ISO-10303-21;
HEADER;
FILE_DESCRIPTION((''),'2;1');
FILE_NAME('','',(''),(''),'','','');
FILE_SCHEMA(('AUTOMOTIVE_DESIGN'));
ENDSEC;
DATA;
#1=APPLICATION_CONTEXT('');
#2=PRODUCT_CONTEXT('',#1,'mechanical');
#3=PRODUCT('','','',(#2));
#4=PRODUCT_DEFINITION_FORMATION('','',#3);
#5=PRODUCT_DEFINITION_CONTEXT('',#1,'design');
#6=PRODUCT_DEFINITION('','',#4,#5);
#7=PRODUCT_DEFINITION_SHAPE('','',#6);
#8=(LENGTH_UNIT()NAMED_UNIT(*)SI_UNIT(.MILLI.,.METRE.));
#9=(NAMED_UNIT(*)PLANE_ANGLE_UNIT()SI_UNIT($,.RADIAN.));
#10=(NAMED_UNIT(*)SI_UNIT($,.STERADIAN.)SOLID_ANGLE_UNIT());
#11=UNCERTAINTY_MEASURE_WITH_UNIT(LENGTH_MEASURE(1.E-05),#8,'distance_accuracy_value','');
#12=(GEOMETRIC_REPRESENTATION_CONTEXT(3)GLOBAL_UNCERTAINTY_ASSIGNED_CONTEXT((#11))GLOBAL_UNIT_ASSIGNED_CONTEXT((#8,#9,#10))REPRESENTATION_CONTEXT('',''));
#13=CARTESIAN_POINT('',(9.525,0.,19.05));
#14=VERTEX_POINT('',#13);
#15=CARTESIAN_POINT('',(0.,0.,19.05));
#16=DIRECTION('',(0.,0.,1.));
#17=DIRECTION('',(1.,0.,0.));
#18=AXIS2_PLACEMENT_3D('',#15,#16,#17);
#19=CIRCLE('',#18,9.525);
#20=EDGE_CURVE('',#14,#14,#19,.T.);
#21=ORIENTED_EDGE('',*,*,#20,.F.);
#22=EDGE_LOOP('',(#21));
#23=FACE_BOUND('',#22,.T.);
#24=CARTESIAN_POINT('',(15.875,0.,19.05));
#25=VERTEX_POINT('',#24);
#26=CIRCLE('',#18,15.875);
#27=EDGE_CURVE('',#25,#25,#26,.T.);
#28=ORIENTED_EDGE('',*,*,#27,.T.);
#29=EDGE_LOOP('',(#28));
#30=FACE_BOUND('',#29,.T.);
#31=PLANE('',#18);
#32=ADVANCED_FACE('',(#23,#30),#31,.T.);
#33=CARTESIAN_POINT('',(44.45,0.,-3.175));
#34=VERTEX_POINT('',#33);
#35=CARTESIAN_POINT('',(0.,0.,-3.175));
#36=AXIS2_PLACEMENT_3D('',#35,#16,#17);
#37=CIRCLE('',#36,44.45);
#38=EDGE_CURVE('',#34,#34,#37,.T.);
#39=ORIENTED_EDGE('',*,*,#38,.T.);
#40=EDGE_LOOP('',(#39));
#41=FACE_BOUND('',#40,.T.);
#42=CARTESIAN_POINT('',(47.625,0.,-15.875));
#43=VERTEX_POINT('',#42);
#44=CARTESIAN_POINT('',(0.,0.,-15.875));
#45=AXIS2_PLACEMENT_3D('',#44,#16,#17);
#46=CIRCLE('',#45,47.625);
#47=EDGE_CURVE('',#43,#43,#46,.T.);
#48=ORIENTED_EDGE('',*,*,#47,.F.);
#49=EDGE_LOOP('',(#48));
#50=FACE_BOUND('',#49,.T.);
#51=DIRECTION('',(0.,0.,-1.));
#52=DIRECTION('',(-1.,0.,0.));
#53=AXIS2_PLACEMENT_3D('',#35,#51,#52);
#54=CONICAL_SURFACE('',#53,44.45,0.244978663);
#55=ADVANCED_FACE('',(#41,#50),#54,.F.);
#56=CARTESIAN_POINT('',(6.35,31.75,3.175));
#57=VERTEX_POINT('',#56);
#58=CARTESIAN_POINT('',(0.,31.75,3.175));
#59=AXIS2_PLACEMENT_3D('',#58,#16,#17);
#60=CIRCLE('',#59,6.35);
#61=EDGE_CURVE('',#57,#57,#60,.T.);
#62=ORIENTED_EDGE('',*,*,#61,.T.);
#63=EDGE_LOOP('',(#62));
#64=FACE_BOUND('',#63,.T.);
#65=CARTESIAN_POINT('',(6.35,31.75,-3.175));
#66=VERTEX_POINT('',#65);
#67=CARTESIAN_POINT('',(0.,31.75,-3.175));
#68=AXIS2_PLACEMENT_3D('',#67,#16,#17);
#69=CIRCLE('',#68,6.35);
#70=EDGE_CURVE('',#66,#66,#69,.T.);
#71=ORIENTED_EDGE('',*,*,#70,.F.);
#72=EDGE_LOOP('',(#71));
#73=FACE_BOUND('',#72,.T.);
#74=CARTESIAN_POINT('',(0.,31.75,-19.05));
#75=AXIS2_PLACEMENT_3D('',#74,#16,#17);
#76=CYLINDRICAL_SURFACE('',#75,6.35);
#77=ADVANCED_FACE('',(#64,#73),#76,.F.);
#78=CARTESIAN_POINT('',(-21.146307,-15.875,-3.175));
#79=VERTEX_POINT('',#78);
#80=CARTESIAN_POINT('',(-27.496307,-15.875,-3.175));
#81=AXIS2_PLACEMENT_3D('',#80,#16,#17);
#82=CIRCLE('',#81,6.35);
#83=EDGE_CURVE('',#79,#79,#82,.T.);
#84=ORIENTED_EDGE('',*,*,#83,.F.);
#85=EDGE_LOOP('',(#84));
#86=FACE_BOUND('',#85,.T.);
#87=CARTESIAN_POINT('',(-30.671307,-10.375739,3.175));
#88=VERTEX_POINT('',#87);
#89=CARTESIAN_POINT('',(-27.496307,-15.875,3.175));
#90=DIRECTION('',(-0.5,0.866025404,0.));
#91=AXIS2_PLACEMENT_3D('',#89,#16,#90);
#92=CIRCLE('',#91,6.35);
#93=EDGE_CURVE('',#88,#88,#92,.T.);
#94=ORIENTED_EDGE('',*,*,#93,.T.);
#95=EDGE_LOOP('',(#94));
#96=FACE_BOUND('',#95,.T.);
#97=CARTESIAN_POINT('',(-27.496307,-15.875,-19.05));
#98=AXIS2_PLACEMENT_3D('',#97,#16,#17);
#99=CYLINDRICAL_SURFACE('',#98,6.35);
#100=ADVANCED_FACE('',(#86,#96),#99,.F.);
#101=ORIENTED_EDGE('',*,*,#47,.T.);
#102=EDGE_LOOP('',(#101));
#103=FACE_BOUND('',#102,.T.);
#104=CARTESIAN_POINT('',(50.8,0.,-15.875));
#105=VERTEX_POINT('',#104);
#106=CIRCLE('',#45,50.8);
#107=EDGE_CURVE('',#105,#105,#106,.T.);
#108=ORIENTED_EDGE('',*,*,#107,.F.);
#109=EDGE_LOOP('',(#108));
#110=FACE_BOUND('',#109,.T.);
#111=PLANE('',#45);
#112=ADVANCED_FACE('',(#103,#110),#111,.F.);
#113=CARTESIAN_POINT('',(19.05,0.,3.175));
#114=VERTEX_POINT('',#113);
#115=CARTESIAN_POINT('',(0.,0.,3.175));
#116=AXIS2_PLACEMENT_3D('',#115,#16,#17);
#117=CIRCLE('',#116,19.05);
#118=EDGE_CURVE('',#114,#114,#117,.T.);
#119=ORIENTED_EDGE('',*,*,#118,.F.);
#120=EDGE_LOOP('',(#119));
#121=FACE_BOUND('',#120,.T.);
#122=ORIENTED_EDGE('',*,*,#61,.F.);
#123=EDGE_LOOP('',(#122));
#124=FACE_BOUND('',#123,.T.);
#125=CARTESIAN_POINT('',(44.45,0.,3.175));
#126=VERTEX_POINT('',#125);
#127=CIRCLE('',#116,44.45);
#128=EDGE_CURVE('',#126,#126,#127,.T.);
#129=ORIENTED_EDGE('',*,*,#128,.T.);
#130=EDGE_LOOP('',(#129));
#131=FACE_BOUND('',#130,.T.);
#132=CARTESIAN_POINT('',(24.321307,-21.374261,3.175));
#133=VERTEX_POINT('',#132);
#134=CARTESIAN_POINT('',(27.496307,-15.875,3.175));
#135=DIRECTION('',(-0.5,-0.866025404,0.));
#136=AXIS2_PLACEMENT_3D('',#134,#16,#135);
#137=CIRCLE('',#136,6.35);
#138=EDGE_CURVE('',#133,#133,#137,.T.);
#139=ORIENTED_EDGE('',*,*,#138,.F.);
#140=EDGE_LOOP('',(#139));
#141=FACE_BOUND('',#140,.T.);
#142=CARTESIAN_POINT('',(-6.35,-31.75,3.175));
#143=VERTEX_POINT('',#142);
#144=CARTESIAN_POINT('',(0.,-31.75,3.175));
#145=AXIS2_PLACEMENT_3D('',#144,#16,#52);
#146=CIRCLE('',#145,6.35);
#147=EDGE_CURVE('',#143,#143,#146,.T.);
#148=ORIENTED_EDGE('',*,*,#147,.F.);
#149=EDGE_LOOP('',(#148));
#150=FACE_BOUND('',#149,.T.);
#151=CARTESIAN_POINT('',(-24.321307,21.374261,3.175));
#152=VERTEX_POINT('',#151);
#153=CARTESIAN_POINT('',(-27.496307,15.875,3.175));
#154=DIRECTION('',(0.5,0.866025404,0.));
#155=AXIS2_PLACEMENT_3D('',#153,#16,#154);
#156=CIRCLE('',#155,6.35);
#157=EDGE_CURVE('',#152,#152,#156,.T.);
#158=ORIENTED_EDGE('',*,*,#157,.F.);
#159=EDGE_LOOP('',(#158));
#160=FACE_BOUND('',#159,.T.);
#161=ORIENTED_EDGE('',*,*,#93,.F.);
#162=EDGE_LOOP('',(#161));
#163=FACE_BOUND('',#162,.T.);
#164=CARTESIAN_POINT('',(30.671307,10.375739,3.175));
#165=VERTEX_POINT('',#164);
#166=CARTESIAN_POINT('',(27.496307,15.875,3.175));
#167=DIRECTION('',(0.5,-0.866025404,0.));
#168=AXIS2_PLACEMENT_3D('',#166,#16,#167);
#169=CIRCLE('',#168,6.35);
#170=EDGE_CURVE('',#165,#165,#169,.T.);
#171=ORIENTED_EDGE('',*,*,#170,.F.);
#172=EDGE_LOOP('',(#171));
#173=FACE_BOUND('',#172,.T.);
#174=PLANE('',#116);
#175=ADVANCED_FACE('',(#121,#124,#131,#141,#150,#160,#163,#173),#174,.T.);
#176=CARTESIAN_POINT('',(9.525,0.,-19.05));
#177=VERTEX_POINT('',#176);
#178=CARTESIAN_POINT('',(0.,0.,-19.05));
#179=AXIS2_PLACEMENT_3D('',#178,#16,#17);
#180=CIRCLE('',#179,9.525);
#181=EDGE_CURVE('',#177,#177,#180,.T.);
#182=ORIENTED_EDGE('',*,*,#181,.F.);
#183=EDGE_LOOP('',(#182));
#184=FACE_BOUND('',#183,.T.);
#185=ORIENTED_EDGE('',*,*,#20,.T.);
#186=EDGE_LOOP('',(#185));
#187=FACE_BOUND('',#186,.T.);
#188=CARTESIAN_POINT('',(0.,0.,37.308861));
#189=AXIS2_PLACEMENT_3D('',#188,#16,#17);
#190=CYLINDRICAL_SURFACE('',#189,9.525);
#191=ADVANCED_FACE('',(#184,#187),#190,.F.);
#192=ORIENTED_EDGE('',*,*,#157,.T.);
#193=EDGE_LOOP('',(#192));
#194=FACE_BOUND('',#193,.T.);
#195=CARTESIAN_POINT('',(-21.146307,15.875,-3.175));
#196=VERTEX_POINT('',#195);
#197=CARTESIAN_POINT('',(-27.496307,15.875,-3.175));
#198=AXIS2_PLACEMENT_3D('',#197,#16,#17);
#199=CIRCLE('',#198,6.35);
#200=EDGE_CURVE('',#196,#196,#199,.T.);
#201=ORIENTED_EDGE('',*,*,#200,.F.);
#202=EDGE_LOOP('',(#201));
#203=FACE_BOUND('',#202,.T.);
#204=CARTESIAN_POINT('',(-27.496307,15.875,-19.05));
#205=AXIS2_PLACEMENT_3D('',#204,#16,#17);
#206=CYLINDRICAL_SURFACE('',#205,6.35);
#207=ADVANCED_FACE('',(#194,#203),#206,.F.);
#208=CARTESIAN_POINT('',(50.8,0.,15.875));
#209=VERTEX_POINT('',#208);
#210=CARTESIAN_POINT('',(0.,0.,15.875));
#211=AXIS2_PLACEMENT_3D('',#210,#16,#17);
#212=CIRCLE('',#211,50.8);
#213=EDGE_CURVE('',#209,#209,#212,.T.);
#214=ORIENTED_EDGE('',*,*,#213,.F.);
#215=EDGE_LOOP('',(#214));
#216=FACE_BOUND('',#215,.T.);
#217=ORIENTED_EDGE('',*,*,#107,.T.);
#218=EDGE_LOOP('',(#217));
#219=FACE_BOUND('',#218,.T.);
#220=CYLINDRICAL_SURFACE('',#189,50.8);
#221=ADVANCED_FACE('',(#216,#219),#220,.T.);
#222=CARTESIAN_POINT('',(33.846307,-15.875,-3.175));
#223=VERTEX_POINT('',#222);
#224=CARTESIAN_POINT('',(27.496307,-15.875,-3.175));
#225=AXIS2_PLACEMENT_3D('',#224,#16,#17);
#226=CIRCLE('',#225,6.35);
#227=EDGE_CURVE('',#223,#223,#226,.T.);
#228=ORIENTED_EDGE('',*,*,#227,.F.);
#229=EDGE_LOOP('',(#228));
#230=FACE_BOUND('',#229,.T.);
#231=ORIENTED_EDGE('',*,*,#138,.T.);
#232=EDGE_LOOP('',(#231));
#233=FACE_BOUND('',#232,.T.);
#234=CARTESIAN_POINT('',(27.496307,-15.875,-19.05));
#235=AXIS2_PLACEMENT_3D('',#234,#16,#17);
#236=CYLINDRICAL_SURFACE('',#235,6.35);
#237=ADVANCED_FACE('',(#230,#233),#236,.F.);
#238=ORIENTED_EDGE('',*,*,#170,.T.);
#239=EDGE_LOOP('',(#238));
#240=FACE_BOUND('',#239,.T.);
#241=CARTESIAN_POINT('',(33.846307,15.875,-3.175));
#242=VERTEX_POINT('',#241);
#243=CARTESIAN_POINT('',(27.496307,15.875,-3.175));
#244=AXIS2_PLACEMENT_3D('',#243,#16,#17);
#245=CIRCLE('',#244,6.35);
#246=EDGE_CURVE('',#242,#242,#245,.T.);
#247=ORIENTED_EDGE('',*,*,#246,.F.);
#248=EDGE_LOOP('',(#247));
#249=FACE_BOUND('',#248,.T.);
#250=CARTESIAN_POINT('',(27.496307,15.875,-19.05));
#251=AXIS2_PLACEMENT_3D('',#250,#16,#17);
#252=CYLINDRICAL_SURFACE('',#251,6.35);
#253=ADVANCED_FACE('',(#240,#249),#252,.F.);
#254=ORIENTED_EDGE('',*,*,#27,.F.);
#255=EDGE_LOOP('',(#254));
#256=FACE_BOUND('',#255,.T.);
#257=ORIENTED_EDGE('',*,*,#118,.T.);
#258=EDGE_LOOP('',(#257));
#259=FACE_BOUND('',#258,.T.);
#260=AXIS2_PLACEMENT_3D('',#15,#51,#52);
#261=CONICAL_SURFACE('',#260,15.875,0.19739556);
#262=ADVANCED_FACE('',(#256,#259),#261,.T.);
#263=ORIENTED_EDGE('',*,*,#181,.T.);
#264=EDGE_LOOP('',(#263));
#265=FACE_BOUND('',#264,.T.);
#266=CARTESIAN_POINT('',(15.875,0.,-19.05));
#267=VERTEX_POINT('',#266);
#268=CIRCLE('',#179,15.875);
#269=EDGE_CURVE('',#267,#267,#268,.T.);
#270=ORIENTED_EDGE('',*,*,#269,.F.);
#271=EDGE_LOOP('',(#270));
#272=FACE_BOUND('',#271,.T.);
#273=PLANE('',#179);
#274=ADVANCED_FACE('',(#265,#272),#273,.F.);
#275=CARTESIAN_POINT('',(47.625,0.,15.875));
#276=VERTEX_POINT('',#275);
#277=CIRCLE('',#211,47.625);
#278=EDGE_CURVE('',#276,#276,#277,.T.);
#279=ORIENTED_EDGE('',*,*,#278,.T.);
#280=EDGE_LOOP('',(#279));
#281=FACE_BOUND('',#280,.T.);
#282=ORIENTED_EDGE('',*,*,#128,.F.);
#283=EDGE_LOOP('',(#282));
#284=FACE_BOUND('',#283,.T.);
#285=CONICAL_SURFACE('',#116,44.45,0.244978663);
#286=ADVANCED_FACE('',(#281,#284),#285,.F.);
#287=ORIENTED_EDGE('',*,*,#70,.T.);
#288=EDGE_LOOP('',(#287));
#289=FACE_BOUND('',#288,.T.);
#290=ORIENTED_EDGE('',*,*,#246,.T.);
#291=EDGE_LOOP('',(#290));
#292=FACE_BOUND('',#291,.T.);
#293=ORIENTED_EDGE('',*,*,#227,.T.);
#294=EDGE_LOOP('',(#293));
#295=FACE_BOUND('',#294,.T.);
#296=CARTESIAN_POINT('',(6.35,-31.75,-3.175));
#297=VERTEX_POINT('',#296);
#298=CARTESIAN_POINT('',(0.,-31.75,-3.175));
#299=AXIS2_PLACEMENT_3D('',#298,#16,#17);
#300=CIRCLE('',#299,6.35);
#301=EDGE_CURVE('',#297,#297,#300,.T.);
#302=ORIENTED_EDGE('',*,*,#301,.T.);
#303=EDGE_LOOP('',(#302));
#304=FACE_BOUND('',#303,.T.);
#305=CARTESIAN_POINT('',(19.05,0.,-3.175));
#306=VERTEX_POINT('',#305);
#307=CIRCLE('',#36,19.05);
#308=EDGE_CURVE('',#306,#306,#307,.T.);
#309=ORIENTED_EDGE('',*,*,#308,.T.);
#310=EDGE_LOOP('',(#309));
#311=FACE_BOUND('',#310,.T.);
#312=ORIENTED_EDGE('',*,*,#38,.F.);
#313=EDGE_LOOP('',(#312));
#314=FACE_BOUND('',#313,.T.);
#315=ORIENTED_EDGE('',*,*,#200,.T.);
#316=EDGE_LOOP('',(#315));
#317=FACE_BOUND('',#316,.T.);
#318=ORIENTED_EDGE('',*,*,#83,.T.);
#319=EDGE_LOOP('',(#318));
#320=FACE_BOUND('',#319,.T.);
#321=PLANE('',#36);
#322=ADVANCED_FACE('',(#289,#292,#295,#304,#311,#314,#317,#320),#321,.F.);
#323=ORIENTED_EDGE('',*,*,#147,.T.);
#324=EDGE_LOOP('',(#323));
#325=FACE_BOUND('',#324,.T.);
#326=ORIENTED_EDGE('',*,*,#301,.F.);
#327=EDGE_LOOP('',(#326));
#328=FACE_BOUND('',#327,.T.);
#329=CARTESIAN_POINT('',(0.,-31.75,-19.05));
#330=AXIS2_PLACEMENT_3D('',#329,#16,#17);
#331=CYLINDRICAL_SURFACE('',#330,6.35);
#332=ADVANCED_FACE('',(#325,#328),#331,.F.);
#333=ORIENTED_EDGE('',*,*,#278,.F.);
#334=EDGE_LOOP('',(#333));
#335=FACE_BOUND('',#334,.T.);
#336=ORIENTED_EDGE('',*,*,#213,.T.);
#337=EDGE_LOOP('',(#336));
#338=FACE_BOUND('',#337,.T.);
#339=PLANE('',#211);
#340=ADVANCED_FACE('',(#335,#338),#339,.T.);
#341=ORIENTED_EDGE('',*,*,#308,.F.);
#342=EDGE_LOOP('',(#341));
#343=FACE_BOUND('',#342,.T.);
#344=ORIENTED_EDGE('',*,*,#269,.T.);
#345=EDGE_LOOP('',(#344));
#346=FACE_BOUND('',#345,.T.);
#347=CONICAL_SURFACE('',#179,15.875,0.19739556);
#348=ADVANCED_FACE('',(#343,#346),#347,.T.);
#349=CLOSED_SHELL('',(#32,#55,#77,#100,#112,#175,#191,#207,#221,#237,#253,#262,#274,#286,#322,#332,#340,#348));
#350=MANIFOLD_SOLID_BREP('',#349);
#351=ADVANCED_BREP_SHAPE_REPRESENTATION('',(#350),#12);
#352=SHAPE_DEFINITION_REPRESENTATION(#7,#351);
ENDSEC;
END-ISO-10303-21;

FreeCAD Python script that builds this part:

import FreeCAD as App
import Part
import Sketcher
from FreeCAD import Vector
Q = App.Units.Quantity

doc = App.newDocument("Part")
body = doc.addObject("PartDesign::Body", "Body")

sketch1 = body.newObject("Sketcher::SketchObject", "Sketch")
sketch1.AttachmentSupport = (doc.getObject("YZ_Plane"), [""])
sketch1.MapMode = "FlatFace"
sketch1.addGeometry(Part.LineSegment(Vector(9.5, 19.1, 0), Vector(9.5, -19.1, 0)), False)
sketch1.addGeometry(Part.LineSegment(Vector(9.5, -19.1, 0), Vector(15.9, -19.1, 0)), False)
sketch1.addGeometry(Part.LineSegment(Vector(15.9, -19.1, 0), Vector(19.1, -3.2, 0)), False)
sketch1.addGeometry(Part.LineSegment(Vector(19.1, -3.2, 0), Vector(44.5, -3.2, 0)), False)
sketch1.addGeometry(Part.LineSegment(Vector(44.5, -3.2, 0), Vector(47.6, -15.9, 0)), False)
sketch1.addGeometry(Part.LineSegment(Vector(47.6, -15.9, 0), Vector(50.8, -15.9, 0)), False)
sketch1.addGeometry(Part.LineSegment(Vector(50.8, -15.9, 0), Vector(50.8, 15.9, 0)), False)
sketch1.addGeometry(Part.LineSegment(Vector(50.8, 15.9, 0), Vector(47.6, 15.9, 0)), False)
sketch1.addGeometry(Part.LineSegment(Vector(47.6, 15.9, 0), Vector(44.5, 3.2, 0)), False)
sketch1.addGeometry(Part.LineSegment(Vector(44.5, 3.2, 0), Vector(19.1, 3.2, 0)), False)
sketch1.addGeometry(Part.LineSegment(Vector(19.1, 3.2, 0), Vector(15.9, 19.1, 0)), False)
sketch1.addGeometry(Part.LineSegment(Vector(15.9, 19.1, 0), Vector(9.5, 19.1, 0)), False)
sketch1.addConstraint(Sketcher.Constraint("Coincident", 0, 2, 1, 1))
sketch1.addConstraint(Sketcher.Constraint("Coincident", 1, 2, 2, 1))
sketch1.addConstraint(Sketcher.Constraint("Coincident", 2, 2, 3, 1))
sketch1.addConstraint(Sketcher.Constraint("Coincident", 3, 2, 4, 1))
sketch1.addConstraint(Sketcher.Constraint("Coincident", 4, 2, 5, 1))
sketch1.addConstraint(Sketcher.Constraint("Coincident", 5, 2, 6, 1))
sketch1.addConstraint(Sketcher.Constraint("Coincident", 6, 2, 7, 1))
sketch1.addConstraint(Sketcher.Constraint("Coincident", 7, 2, 8, 1))
sketch1.addConstraint(Sketcher.Constraint("Coincident", 8, 2, 9, 1))
sketch1.addConstraint(Sketcher.Constraint("Coincident", 9, 2, 10, 1))
sketch1.addConstraint(Sketcher.Constraint("Coincident", 10, 2, 11, 1))
sketch1.addConstraint(Sketcher.Constraint("Coincident", 11, 2, 0, 1))
sketch1.addConstraint(Sketcher.Constraint("Vertical", 0))
sketch1.addConstraint(Sketcher.Constraint("Horizontal", 1))
sketch1.addConstraint(Sketcher.Constraint("Horizontal", 3))
sketch1.addConstraint(Sketcher.Constraint("Horizontal", 5))
sketch1.addConstraint(Sketcher.Constraint("Vertical", 6))
sketch1.addConstraint(Sketcher.Constraint("Horizontal", 7))
sketch1.addConstraint(Sketcher.Constraint("Horizontal", 9))
sketch1.addConstraint(Sketcher.Constraint("Horizontal", 11))
sketch1.addConstraint(Sketcher.Constraint("Symmetric", 4, 2, 7, 2, -1))
sketch1.addConstraint(Sketcher.Constraint("Symmetric", 3, 2, 8, 2, -1))
sketch1.addConstraint(Sketcher.Constraint("Symmetric", 1, 2, 10, 2, -1))
sketch1.addConstraint(Sketcher.Constraint("Vertical", 2, 2, 9, 2))
sketch1.addConstraint(Sketcher.Constraint("DistanceX", 3, 1, 3, 2, Q("1 in")))
sketch1.addConstraint(Sketcher.Constraint("DistanceY", 0, 2, 0, 1, Q("1.5 in")))
sketch1.addConstraint(Sketcher.Constraint("DistanceX", -1, 1, 5, 2, Q("2 in")))
sketch1.addConstraint(Sketcher.Constraint("DistanceX", 1, 1, 1, 2, Q("0.25 in")))
sketch1.addConstraint(Sketcher.Constraint("DistanceY", 6, 1, 6, 2, Q("1.25 in")))
sketch1.addConstraint(Sketcher.Constraint("DistanceY", 4, 2, 3, 2, Q("0.5 in")))
sketch1.addConstraint(Sketcher.Constraint("DistanceX", 0, 2, 4, 2, Q("1.5 in")))
sketch1.addConstraint(Sketcher.Constraint("DistanceX", 5, 1, 5, 2, Q("0.125 in")))
sketch1.addConstraint(Sketcher.Constraint("DistanceX", -1, 1, 2, 2, Q("0.75 in")))
revolution = body.newObject("PartDesign::Revolution", "Revolution")
revolution.Profile = sketch1
revolution.ReferenceAxis = (sketch1, ["V_Axis"])
revolution.Angle = 360

sketch2 = body.newObject("Sketcher::SketchObject", "Sketch001")
sketch2.AttachmentSupport = (doc.getObject("XY_Plane"), [""])
sketch2.MapMode = "FlatFace"
sketch2.AttachmentOffset = App.Placement(Vector(0, 0, 0.125 * 25.4), App.Rotation())
sketch2.addGeometry(Part.Circle(Vector(0, 32, 0), Vector(0, 0, 1), 6), False)
sketch2.addConstraint(Sketcher.Constraint("PointOnObject", 0, 3, -2))
sketch2.addConstraint(Sketcher.Constraint("Diameter", 0, Q("0.5 in")))
sketch2.addConstraint(Sketcher.Constraint("DistanceY", -1, 1, 0, 3, Q("1.25 in")))
pocket1 = body.newObject("PartDesign::Pocket", "Pocket")
pocket1.Profile = sketch2
pocket1.Type = "ThroughAll"
doc.recompute()

polarpattern = body.newObject("PartDesign::PolarPattern", "PolarPattern")
polarpattern.Originals = [pocket1]
polarpattern.Axis = (doc.getObject("Z_Axis"), [""])
polarpattern.Angle = 360
polarpattern.Occurrences = 6
body.Tip = polarpattern

doc.recompute()
